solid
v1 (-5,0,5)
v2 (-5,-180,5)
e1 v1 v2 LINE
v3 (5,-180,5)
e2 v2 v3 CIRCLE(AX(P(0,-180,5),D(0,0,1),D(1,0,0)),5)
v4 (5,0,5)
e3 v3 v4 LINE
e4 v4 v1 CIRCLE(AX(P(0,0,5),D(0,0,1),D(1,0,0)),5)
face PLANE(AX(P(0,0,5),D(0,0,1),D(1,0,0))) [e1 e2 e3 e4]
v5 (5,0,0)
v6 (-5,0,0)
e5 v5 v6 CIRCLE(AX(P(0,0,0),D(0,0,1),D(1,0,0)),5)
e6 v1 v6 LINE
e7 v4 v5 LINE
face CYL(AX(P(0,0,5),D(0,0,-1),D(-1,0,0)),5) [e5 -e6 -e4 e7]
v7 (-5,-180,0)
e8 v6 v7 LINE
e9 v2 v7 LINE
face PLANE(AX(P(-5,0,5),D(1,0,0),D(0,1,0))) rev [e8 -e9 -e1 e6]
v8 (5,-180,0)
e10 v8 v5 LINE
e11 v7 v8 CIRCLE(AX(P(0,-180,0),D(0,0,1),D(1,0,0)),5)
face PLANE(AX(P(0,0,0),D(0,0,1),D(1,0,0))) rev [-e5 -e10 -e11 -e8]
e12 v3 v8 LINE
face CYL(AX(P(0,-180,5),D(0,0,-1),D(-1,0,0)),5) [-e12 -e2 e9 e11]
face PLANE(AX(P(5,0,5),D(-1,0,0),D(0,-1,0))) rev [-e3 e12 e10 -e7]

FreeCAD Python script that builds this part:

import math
import FreeCAD as App
import Part
import Sketcher

V = App.Vector
Q = App.Units.Quantity

doc = App.newDocument("Part")
body = doc.addObject("PartDesign::Body", "Body")

# Sketch on XY plane
sketch1 = doc.addObject("Sketcher::SketchObject", "Sketch")
body.addObject(sketch1)
sketch1.AttachmentSupport = (doc.XY_Plane, [""])
sketch1.MapMode = "FlatFace"
sketch1.addGeometry(Part.LineSegment(V(5, -180, 0), V(5, 0, 0)), False)
sketch1.addGeometry(Part.ArcOfCircle(Part.Circle(V(0, 0, 0), V(0, 0, 1), 5), math.radians(0), math.radians(180)), False)
sketch1.addGeometry(Part.LineSegment(V(-5, 0, 0), V(-5, -180, 0)), False)
sketch1.addGeometry(Part.ArcOfCircle(Part.Circle(V(0, -180, 0), V(0, 0, 1), 5), math.radians(180), math.radians(360)), False)
sketch1.addConstraint(Sketcher.Constraint("Tangent", 0, 2, 1, 1))
sketch1.addConstraint(Sketcher.Constraint("Tangent", 1, 2, 2, 1))
sketch1.addConstraint(Sketcher.Constraint("Tangent", 2, 2, 3, 1))
sketch1.addConstraint(Sketcher.Constraint("Tangent", 3, 2, 0, 1))
sketch1.addConstraint(Sketcher.Constraint("Vertical", 0))
sketch1.addConstraint(Sketcher.Constraint("Vertical", 2))
sketch1.addConstraint(Sketcher.Constraint("Coincident", 1, 3, -1, 1))
sketch1.addConstraint(Sketcher.Constraint("Radius", 1, Q("5 mm")))
sketch1.addConstraint(Sketcher.Constraint("DistanceY", 0, 1, 0, 2, Q("180 mm")))
pad1 = doc.addObject("PartDesign::Pad", "Pad")
body.addObject(pad1)
pad1.Profile = sketch1
pad1.Length = 5

doc.recompute()
